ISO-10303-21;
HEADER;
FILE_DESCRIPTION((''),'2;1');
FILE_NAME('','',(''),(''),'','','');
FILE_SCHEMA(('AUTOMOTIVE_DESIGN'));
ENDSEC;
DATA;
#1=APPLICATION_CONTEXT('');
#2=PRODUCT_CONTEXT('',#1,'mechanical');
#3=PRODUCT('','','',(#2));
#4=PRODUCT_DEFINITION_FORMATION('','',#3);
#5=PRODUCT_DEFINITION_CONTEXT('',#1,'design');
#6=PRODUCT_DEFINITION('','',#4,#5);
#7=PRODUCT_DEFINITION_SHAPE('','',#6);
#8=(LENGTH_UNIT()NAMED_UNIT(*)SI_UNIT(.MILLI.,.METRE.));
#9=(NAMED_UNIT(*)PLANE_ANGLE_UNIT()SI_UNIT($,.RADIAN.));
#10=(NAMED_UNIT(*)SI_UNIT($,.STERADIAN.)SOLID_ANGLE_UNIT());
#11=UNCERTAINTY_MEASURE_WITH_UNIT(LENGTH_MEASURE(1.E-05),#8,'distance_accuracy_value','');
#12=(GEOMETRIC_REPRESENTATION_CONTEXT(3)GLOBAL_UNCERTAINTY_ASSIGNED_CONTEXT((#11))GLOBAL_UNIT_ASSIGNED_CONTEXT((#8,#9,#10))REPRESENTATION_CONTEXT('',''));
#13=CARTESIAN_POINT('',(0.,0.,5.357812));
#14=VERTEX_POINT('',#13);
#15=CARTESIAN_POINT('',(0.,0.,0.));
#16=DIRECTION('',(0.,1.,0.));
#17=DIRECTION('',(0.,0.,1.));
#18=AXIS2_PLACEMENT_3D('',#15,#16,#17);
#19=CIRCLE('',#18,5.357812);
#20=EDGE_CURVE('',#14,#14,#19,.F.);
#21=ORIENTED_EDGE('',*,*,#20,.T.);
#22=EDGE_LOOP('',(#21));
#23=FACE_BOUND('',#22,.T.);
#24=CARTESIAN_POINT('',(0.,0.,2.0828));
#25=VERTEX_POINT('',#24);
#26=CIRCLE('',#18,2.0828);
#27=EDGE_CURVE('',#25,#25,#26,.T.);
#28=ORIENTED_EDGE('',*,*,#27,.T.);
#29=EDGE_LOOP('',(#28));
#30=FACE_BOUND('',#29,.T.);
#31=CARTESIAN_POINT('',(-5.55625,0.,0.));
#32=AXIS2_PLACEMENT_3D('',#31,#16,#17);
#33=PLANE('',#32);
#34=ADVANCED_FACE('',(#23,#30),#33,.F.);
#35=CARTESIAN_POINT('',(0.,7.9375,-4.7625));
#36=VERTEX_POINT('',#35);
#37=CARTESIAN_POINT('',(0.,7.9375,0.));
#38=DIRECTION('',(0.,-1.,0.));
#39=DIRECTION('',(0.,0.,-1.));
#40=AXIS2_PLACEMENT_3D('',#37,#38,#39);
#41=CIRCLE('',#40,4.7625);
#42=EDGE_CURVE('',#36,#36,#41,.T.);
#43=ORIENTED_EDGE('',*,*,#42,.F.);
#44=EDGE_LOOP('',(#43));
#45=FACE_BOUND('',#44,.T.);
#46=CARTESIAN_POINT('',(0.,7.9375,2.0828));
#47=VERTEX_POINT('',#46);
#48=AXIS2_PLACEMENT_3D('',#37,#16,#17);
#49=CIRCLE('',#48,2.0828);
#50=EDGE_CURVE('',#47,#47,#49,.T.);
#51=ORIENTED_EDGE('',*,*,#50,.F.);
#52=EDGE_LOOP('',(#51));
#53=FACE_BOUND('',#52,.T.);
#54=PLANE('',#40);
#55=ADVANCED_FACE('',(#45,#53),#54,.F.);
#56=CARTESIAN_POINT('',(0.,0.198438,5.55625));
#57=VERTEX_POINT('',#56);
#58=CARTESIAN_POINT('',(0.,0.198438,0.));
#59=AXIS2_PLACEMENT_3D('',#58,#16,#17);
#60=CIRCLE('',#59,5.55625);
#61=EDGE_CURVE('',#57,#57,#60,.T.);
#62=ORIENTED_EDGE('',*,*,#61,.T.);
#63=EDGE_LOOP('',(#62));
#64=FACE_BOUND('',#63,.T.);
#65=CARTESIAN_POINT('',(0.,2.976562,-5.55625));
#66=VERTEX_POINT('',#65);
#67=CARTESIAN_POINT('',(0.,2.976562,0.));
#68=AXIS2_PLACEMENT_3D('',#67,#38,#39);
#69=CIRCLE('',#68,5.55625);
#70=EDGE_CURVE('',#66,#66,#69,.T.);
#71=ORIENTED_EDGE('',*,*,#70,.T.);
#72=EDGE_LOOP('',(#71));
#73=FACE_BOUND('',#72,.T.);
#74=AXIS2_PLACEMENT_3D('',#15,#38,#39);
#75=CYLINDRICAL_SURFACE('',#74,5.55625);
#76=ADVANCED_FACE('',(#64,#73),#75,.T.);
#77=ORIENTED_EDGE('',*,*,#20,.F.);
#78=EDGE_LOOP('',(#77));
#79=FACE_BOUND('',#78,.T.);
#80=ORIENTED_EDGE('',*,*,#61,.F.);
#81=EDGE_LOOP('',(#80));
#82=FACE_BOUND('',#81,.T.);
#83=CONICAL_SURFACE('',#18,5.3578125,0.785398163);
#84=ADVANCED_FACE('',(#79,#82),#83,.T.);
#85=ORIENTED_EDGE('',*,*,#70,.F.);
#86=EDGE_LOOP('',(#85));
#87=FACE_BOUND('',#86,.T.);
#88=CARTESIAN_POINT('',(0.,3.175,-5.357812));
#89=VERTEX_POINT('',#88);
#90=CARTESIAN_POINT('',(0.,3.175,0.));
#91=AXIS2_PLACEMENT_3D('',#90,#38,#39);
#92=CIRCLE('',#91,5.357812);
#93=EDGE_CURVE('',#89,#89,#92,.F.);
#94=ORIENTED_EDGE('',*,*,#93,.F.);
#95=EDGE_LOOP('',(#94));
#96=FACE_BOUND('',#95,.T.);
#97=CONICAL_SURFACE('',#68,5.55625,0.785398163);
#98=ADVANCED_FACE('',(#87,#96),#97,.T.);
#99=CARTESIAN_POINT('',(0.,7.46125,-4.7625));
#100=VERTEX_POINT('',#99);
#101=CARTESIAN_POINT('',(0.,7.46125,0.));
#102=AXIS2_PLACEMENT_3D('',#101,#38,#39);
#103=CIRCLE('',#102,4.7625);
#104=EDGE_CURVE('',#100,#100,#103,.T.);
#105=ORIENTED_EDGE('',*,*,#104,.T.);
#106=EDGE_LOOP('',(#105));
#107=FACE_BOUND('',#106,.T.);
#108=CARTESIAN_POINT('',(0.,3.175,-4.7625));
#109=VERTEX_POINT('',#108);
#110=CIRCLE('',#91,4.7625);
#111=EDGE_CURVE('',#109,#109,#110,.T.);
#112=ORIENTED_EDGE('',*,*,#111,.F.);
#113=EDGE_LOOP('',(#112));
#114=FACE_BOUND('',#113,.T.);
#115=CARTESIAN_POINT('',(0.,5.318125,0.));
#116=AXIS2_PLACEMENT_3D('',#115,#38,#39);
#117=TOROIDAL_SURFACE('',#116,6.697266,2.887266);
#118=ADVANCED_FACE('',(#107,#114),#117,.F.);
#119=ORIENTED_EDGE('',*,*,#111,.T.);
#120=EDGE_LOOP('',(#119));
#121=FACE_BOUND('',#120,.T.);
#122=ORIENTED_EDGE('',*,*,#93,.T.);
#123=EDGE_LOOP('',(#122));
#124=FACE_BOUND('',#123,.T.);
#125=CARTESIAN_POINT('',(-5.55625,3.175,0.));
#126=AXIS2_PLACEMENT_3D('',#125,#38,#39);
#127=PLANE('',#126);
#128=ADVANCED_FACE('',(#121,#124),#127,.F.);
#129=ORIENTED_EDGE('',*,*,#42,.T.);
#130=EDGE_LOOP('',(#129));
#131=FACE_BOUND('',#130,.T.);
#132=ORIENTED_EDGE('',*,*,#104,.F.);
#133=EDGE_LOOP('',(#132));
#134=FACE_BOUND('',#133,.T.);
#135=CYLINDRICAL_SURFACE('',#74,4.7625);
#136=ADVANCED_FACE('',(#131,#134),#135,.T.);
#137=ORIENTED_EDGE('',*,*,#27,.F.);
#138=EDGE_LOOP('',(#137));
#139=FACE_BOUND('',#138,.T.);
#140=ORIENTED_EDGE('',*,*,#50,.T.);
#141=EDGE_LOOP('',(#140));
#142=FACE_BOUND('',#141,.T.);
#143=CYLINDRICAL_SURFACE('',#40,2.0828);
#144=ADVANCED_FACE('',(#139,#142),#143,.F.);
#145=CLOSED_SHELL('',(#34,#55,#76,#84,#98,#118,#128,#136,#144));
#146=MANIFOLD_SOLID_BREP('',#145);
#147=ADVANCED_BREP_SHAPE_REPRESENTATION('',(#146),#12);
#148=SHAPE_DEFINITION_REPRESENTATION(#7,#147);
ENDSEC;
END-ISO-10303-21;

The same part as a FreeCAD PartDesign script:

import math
import FreeCAD as App
import Part
import Sketcher

V = App.Vector
Q = App.Units.Quantity


def edges_at(feature, points):
    """Names of the edges that pass closest to the given points."""
    edges = feature.Shape.Edges
    near = lambda p: min(range(len(edges)), key=lambda i: edges[i].distToShape(Part.Vertex(*p))[0])
    return sorted({f"Edge{near(p) + 1}" for p in points})

doc = App.newDocument("Part")
body = doc.addObject("PartDesign::Body", "Body")

sketch1 = body.newObject("Sketcher::SketchObject", "Sketch")
sketch1.AttachmentSupport = (doc.getObject("XY_Plane"), [""])
sketch1.MapMode = "FlatFace"
sketch1.addGeometry([
    Part.LineSegment(V(0, 7.94, 0), V(-4.76, 7.94, 0)),
    Part.LineSegment(V(-4.76, 7.94, 0), V(-4.76, 7.46, 0)),
    Part.ArcOfCircle(Part.Circle(V(-6.7, 5.32, 0), V(0, 0, 1), 2.89), math.radians(-48), math.radians(48)),
    Part.LineSegment(V(-4.76, 3.17, 0), V(-5.56, 3.17, 0)),
    Part.LineSegment(V(-5.56, 3.17, 0), V(-5.56, 0, 0)),
    Part.LineSegment(V(-5.56, 0, 0), V(0, 0, 0)),
    Part.LineSegment(V(0, 0, 0), V(0, 7.94, 0)),
], False)
sketch1.addConstraint([
    Sketcher.Constraint("Coincident", 0, 2, 1, 1),
    Sketcher.Constraint("Coincident", 1, 2, 2, 2),
    Sketcher.Constraint("Coincident", 2, 1, 3, 1),
    Sketcher.Constraint("Coincident", 3, 2, 4, 1),
    Sketcher.Constraint("Coincident", 4, 2, 5, 1),
    Sketcher.Constraint("Coincident", 5, 2, 6, 1),
    Sketcher.Constraint("Coincident", 6, 2, 0, 1),
    Sketcher.Constraint("Horizontal", 0),
    Sketcher.Constraint("Vertical", 1),
    Sketcher.Constraint("Horizontal", 3),
    Sketcher.Constraint("Vertical", 4),
    Sketcher.Constraint("Horizontal", 5),
    Sketcher.Constraint("Vertical", 6),
    Sketcher.Constraint("Coincident", 5, 2, -1, 1),
    Sketcher.Constraint("Vertical", 1, 2, 2, 1),
    Sketcher.Constraint("DistanceX", 0, 2, 0, 1, Q("0.1875 in")),
    Sketcher.Constraint("DistanceX", 3, 2, 3, 1, Q("0.03125 in")),
    Sketcher.Constraint("DistanceY", 4, 2, 4, 1, Q("0.125 in")),
    Sketcher.Constraint("DistanceY", 6, 1, 6, 2, Q("0.3125 in")),
    Sketcher.Constraint("Radius", 2, Q("2.887266 mm")),
    Sketcher.Constraint("DistanceY", 1, 2, 1, 1, Q("0.47625 mm")),
])
revolution = body.newObject("PartDesign::Revolution", "Revolution")
revolution.Profile = sketch1
revolution.ReferenceAxis = (sketch1, ["V_Axis"])
revolution.Angle = 360

sketch2 = body.newObject("Sketcher::SketchObject", "Sketch001")
sketch2.AttachmentSupport = (doc.getObject("XZ_Plane"), [""])
sketch2.MapMode = "FlatFace"
sketch2.addGeometry(Part.Circle(V(0, 0, 0), V(0, 0, 1), 2.1), False)
sketch2.addConstraint([
    Sketcher.Constraint("Coincident", 0, 3, -1, 1),
    Sketcher.Constraint("Diameter", 0, Q("0.164 in")),
])
pocket1 = body.newObject("PartDesign::Pocket", "Pocket")
pocket1.Profile = sketch2
pocket1.Type = "ThroughAll"
doc.recompute()

chamfer = body.newObject("PartDesign::Chamfer", "Chamfer")
chamfer.Base = (pocket1, edges_at(pocket1, [(0, 0, 5.556), (0, 3.175, 5.556)]))
chamfer.Size = 0.198437

doc.recompute()
